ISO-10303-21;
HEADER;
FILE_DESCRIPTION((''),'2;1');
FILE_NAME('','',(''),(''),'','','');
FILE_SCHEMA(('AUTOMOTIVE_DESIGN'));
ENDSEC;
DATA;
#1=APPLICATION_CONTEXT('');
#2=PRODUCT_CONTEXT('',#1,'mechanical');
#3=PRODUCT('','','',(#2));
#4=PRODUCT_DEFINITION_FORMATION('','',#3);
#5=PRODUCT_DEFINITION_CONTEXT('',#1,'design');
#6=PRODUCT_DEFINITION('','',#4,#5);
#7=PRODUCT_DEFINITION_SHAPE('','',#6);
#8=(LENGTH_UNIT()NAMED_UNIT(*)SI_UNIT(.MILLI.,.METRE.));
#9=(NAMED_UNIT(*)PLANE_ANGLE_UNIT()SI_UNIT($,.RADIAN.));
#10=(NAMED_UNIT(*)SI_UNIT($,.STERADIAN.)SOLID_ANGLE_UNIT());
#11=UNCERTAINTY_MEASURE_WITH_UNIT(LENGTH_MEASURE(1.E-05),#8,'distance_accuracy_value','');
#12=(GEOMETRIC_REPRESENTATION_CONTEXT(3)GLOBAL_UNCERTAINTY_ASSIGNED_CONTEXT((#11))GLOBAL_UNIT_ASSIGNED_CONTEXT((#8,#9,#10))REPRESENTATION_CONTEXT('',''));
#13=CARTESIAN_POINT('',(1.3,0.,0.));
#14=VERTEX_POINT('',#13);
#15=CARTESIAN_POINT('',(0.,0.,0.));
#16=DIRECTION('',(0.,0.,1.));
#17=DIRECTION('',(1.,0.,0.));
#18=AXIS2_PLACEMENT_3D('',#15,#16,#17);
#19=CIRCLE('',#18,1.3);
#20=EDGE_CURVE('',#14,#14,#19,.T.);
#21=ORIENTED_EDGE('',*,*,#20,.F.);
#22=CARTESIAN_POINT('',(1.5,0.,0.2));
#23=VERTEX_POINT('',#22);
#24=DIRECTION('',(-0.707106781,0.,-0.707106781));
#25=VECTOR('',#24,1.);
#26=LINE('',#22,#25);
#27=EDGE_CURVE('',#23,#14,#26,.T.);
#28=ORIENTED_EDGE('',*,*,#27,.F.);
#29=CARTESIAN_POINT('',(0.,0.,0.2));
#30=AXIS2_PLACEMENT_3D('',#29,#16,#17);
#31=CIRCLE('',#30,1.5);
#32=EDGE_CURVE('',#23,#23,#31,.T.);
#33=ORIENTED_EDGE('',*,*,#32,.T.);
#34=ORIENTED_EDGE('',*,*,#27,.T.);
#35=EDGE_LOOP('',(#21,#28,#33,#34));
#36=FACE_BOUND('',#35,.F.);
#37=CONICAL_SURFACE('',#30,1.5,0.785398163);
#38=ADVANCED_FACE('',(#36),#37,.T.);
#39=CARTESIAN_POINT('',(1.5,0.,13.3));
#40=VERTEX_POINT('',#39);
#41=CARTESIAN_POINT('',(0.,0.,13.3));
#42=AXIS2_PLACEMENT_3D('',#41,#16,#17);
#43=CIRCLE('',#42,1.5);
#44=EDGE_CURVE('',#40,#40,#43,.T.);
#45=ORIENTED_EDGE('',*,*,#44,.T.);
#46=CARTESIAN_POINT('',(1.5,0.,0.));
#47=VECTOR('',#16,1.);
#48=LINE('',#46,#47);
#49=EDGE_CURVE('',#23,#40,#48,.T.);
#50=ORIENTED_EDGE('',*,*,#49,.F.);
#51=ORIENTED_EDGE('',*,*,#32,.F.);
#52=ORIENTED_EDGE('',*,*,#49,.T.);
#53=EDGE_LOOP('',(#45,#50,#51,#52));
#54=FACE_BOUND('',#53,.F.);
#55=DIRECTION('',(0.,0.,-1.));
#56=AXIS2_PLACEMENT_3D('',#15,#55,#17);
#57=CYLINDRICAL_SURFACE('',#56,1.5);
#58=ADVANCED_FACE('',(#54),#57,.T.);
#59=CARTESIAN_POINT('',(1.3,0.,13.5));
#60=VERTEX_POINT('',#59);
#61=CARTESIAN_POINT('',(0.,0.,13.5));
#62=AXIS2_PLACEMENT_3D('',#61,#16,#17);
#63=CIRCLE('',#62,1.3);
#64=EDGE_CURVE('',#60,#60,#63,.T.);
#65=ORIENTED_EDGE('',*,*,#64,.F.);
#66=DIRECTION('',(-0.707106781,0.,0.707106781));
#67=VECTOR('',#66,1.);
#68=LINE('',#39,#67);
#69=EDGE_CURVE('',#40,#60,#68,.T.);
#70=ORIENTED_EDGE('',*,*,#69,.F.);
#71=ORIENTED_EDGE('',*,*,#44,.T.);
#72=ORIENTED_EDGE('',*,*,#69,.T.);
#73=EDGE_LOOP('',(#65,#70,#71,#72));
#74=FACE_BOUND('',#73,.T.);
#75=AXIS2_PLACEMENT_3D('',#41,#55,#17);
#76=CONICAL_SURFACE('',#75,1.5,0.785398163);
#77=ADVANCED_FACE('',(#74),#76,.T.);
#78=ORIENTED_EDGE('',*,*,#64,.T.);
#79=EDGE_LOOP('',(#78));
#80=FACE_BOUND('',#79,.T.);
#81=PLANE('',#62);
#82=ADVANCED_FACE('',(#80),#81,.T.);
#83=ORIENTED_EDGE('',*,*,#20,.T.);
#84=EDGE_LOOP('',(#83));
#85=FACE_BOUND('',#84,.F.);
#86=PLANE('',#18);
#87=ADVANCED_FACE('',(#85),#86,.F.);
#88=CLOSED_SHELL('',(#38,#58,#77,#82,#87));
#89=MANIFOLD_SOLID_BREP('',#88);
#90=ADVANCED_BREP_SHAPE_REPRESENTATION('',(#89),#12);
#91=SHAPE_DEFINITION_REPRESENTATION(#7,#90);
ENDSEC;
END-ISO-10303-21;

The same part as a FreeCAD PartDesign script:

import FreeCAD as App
import Part
import Sketcher


def edges_at(feature, points):
    """Names of the edges that pass closest to the given points."""
    edges = feature.Shape.Edges
    near = lambda p: min(range(len(edges)), key=lambda i: edges[i].distToShape(Part.Vertex(*p))[0])
    return sorted({f"Edge{near(p) + 1}" for p in points})

doc = App.newDocument("Part")
body = doc.addObject("PartDesign::Body", "Body")

sketch1 = body.newObject("Sketcher::SketchObject", "Sketch")
sketch1.AttachmentSupport = (doc.getObject("XY_Plane"), [""])
sketch1.MapMode = "FlatFace"
sketch1.addGeometry(Part.Circle(App.Vector(0, 0, 0), App.Vector(0, 0, 1), 1.5), False)
sketch1.addConstraint([
    Sketcher.Constraint("Coincident", 0, 3, -1, 1),
    Sketcher.Constraint("Diameter", 0, 3.0),
])
pad1 = body.newObject("PartDesign::Pad", "Pad")
pad1.Profile = sketch1
pad1.Length = 13.5
doc.recompute()

chamfer = body.newObject("PartDesign::Chamfer", "Chamfer")
chamfer.Base = (pad1, edges_at(pad1, [(-1.5, 0, 0), (-1.5, 0, 13.5)]))
chamfer.Size = 0.2

doc.recompute()
